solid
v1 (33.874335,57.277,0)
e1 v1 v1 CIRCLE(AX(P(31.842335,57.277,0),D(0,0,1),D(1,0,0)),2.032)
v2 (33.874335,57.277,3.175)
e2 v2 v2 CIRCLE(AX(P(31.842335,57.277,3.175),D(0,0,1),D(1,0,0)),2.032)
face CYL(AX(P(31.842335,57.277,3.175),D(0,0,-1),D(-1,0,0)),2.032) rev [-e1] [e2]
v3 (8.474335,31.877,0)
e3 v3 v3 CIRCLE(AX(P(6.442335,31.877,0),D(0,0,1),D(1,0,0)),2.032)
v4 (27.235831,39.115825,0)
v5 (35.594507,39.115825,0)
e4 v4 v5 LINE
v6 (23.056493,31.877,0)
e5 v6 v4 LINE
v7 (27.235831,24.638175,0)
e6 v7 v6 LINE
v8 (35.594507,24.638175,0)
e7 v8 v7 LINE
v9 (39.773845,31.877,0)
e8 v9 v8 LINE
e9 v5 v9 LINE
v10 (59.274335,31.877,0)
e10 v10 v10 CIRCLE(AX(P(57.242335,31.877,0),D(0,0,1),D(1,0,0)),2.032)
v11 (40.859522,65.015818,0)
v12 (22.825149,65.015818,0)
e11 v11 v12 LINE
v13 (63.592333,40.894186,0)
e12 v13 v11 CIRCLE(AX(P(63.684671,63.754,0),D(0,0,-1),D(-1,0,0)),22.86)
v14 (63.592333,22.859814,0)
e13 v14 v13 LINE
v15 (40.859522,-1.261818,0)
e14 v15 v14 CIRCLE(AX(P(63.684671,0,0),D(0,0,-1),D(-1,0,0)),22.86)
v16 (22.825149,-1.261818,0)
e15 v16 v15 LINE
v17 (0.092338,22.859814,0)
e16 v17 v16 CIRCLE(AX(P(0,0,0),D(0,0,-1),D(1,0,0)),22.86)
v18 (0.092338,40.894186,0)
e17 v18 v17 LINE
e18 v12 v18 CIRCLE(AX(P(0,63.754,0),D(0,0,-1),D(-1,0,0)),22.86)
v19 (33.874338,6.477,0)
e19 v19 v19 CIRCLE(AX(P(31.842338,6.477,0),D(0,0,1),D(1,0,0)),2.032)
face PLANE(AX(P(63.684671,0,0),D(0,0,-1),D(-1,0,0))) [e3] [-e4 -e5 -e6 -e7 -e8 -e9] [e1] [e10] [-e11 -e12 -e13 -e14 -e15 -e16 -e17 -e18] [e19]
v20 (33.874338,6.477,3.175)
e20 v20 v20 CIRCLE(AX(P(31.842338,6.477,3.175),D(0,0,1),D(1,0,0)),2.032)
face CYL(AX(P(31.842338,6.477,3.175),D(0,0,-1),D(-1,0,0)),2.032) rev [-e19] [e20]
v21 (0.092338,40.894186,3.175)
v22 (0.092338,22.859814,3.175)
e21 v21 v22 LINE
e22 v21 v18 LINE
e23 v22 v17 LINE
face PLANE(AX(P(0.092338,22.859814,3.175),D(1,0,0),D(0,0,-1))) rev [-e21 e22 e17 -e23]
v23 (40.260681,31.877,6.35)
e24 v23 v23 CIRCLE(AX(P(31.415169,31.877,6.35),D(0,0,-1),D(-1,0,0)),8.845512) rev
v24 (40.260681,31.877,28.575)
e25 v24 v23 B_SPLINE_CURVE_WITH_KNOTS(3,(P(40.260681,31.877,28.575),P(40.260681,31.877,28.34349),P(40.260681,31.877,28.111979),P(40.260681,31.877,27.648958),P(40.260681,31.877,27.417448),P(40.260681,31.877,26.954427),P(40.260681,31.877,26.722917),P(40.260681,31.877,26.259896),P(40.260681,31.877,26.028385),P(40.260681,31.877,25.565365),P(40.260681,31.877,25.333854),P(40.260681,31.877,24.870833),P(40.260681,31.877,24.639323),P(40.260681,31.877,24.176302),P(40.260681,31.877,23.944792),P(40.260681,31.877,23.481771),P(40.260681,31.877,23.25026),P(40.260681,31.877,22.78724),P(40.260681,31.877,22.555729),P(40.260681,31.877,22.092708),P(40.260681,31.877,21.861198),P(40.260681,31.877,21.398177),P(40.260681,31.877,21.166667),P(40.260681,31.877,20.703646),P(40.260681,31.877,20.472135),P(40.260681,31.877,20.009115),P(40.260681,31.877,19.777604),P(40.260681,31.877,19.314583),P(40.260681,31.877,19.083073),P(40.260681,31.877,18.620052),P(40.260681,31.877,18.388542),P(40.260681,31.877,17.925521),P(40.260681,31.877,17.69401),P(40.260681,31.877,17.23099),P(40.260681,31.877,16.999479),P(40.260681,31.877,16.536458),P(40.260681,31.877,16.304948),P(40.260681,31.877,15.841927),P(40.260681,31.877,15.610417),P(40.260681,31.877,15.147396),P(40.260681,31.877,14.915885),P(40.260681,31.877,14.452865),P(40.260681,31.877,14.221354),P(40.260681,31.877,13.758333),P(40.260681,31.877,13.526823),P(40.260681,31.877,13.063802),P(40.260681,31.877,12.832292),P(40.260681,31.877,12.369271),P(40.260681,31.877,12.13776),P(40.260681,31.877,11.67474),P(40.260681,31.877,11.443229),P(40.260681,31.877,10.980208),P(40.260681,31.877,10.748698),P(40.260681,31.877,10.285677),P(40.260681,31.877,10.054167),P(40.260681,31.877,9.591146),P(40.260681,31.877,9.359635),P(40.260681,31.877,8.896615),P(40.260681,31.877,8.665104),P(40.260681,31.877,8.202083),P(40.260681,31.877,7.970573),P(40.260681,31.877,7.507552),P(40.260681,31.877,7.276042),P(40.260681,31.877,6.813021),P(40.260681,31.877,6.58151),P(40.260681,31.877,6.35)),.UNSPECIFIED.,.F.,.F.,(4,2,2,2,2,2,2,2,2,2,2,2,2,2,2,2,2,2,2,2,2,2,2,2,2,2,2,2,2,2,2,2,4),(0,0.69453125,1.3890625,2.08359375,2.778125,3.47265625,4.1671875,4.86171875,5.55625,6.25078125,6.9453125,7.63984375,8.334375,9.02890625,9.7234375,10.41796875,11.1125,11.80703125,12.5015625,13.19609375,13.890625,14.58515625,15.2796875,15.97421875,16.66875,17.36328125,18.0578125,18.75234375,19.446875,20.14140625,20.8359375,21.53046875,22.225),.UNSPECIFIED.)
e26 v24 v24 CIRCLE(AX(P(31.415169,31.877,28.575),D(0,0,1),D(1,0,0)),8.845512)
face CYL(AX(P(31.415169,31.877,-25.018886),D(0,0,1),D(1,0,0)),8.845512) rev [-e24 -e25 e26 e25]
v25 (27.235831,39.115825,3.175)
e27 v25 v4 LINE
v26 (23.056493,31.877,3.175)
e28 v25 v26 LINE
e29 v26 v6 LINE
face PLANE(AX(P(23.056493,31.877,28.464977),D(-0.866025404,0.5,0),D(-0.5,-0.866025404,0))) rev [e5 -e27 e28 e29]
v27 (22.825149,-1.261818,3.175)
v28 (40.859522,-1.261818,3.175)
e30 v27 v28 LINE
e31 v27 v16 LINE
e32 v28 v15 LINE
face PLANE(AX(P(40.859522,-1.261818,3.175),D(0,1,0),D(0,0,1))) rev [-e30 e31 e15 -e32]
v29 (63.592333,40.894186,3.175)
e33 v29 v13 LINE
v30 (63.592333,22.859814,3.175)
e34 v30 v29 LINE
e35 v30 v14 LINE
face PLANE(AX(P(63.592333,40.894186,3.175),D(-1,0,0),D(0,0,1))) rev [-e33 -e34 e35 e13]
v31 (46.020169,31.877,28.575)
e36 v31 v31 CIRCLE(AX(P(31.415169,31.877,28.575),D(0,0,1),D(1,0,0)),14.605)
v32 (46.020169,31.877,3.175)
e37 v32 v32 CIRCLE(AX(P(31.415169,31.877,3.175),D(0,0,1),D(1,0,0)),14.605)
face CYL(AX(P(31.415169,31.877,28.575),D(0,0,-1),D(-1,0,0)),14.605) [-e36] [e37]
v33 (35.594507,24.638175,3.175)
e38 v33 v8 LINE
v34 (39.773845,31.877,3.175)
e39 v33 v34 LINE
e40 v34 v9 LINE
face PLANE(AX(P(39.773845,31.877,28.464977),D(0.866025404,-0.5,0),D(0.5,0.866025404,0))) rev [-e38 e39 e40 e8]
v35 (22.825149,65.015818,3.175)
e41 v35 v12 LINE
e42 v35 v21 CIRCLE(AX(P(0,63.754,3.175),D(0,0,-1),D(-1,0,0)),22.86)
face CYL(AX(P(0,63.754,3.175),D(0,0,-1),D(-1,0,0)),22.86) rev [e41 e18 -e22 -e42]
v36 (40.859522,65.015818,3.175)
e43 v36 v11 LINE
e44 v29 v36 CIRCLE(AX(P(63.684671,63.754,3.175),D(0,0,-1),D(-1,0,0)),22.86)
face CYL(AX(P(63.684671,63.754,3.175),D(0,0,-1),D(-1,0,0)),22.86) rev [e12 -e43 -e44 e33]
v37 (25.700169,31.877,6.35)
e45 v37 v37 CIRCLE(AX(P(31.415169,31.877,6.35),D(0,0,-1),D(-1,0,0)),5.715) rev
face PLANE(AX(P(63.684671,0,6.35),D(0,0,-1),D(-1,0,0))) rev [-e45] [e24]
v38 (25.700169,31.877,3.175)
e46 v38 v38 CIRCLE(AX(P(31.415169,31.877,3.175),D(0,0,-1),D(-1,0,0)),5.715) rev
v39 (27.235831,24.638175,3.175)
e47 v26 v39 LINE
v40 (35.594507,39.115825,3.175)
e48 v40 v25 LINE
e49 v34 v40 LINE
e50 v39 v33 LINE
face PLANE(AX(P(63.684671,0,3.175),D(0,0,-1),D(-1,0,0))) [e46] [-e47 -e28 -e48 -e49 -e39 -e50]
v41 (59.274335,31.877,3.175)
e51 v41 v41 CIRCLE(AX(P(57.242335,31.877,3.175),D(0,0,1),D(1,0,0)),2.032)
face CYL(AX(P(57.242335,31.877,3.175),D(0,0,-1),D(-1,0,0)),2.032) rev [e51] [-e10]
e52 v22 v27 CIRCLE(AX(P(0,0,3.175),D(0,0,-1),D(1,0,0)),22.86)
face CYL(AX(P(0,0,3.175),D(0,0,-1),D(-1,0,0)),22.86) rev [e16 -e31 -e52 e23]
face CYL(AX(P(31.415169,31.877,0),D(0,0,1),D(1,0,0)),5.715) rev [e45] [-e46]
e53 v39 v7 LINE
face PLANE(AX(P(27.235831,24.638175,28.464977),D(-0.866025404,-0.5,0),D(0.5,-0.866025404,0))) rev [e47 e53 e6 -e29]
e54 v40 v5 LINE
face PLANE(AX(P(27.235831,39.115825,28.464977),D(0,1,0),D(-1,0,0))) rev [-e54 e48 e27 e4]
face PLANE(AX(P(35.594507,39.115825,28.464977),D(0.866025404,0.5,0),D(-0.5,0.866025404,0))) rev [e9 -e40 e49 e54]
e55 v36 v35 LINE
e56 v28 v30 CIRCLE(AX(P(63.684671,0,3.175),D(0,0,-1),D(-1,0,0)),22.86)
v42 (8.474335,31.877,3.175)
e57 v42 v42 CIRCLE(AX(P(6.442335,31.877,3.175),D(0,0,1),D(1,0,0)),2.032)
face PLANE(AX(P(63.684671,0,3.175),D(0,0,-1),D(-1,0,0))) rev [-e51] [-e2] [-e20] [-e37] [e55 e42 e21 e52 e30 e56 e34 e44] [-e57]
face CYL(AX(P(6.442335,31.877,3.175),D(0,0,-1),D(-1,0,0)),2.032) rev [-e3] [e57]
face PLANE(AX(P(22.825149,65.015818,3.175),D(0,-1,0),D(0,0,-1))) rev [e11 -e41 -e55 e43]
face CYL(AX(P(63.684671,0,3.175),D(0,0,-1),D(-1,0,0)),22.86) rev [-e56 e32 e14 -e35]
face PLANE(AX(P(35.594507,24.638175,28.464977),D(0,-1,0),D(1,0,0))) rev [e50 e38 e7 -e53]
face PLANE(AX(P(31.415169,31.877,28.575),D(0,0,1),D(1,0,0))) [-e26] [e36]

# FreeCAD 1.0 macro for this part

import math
import FreeCAD as App
import Part
import Sketcher
from FreeCAD import Vector
Q = App.Units.Quantity

doc = App.newDocument("Part")
body = doc.addObject("PartDesign::Body", "Body")

sketch1 = body.newObject("Sketcher::SketchObject", "Sketch")
sketch1.AttachmentSupport = (doc.getObject("XY_Plane"), [""])
sketch1.MapMode = "FlatFace"
sketch1.addGeometry(Part.LineSegment(Vector(0.1, 40.9, 0), Vector(0.1, 22.9, 0)), False)
sketch1.addGeometry(Part.ArcOfCircle(Part.Circle(Vector(0, 0, 0), Vector(0, 0, 1), 22.9), math.radians(-3), math.radians(90)), False)
sketch1.addGeometry(Part.LineSegment(Vector(22.8, -1.3, 0), Vector(40.9, -1.3, 0)), False)
sketch1.addGeometry(Part.ArcOfCircle(Part.Circle(Vector(63.7, 0, 0), Vector(0, 0, 1), 22.9), math.radians(90), math.radians(183)), False)
sketch1.addGeometry(Part.LineSegment(Vector(63.6, 22.9, 0), Vector(63.6, 40.9, 0)), False)
sketch1.addGeometry(Part.ArcOfCircle(Part.Circle(Vector(63.7, 63.8, 0), Vector(0, 0, 1), 22.9), math.radians(177), math.radians(270)), False)
sketch1.addGeometry(Part.LineSegment(Vector(40.9, 65, 0), Vector(22.8, 65, 0)), False)
sketch1.addGeometry(Part.ArcOfCircle(Part.Circle(Vector(0, 63.8, 0), Vector(0, 0, 1), 22.9), math.radians(-90), math.radians(3)), False)
sketch1.addGeometry(Part.Circle(Vector(31.8, 6.5, 0), Vector(0, 0, 1), 2), False)
sketch1.addGeometry(Part.Circle(Vector(57.2, 31.9, 0), Vector(0, 0, 1), 2), False)
sketch1.addGeometry(Part.Circle(Vector(6.4, 31.9, 0), Vector(0, 0, 1), 2), False)
sketch1.addGeometry(Part.Circle(Vector(31.8, 57.3, 0), Vector(0, 0, 1), 2), False)
sketch1.addConstraint(Sketcher.Constraint("Coincident", 0, 2, 1, 2))
sketch1.addConstraint(Sketcher.Constraint("Coincident", 1, 1, 2, 1))
sketch1.addConstraint(Sketcher.Constraint("Coincident", 2, 2, 3, 2))
sketch1.addConstraint(Sketcher.Constraint("Coincident", 3, 1, 4, 1))
sketch1.addConstraint(Sketcher.Constraint("Coincident", 4, 2, 5, 2))
sketch1.addConstraint(Sketcher.Constraint("Coincident", 5, 1, 6, 1))
sketch1.addConstraint(Sketcher.Constraint("Coincident", 6, 2, 7, 2))
sketch1.addConstraint(Sketcher.Constraint("Coincident", 7, 1, 0, 1))
sketch1.addConstraint(Sketcher.Constraint("Vertical", 0))
sketch1.addConstraint(Sketcher.Constraint("Horizontal", 2))
sketch1.addConstraint(Sketcher.Constraint("Vertical", 4))
sketch1.addConstraint(Sketcher.Constraint("Horizontal", 6))
sketch1.addConstraint(Sketcher.Constraint("Coincident", 1, 3, -1, 1))
sketch1.addConstraint(Sketcher.Constraint("Equal", 1, 3))
sketch1.addConstraint(Sketcher.Constraint("Equal", 3, 5))
sketch1.addConstraint(Sketcher.Constraint("Equal", 5, 7))
sketch1.addConstraint(Sketcher.Constraint("Equal", 8, 9))
sketch1.addConstraint(Sketcher.Constraint("Equal", 9, 10))
sketch1.addConstraint(Sketcher.Constraint("Equal", 10, 11))
sketch1.addConstraint(Sketcher.Constraint("PointOnObject", 3, 3, -1))
sketch1.addConstraint(Sketcher.Constraint("PointOnObject", 7, 3, -2))
sketch1.addConstraint(Sketcher.Constraint("Horizontal", 5, 3, 7, 3))
sketch1.addConstraint(Sketcher.Constraint("Horizontal", 9, 3, 10, 3))
sketch1.addConstraint(Sketcher.Constraint("Horizontal", 0, 2, 3, 1))
sketch1.addConstraint(Sketcher.Constraint("Horizontal", 4, 2, 7, 1))
sketch1.addConstraint(Sketcher.Constraint("Vertical", 2, 2, 5, 1))
sketch1.addConstraint(Sketcher.Constraint("Equal", 6, 0))
sketch1.addConstraint(Sketcher.Constraint("Radius", 1, Q("0.9 in")))
sketch1.addConstraint(Sketcher.Constraint("Diameter", 8, Q("0.16 in")))
sketch1.addConstraint(Sketcher.Constraint("DistanceX", 8, 3, 9, 3, Q("0.9999999 in")))
sketch1.addConstraint(Sketcher.Constraint("DistanceY", 8, 3, 9, 3, Q("1 in")))
sketch1.addConstraint(Sketcher.Constraint("DistanceX", 10, 3, 8, 3, Q("1.0000001 in")))
sketch1.addConstraint(Sketcher.Constraint("DistanceX", 11, 3, 9, 3, Q("1 in")))
sketch1.addConstraint(Sketcher.Constraint("DistanceY", 9, 3, 11, 3, Q("1 in")))
sketch1.addConstraint(Sketcher.Constraint("DistanceY", -1, 1, 5, 3, Q("2.51 in")))
sketch1.addConstraint(Sketcher.Constraint("DistanceX", 0, 2, 10, 3, Q("0.2499999 in")))
sketch1.addConstraint(Sketcher.Constraint("DistanceX", 9, 3, 3, 1, Q("0.2499999 in")))
sketch1.addConstraint(Sketcher.Constraint("DistanceY", -1, 1, 8, 3, Q("0.255 in")))
sketch1.addConstraint(Sketcher.Constraint("DistanceX", -1, 1, 3, 3, 63.684671))
pad1 = body.newObject("PartDesign::Pad", "Pad")
pad1.Profile = sketch1
pad1.Length = Q("0.125 in")

sketch2 = body.newObject("Sketcher::SketchObject", "Sketch001")
sketch2.AttachmentSupport = (doc.getObject("XY_Plane"), [""])
sketch2.MapMode = "FlatFace"
sketch2.AttachmentOffset = App.Placement(Vector(0, 0, 0.125 * 25.4), App.Rotation())
sketch2.addGeometry(Part.Circle(Vector(31, 32, 0), Vector(0, 0, 1), 6), False)
sketch2.addConstraint(Sketcher.Constraint("Diameter", 0, Q("0.45 in")))
sketch2.addConstraint(Sketcher.Constraint("DistanceY", -1, 1, 0, 3, Q("1.255 in")))
sketch2.addConstraint(Sketcher.Constraint("DistanceX", -1, 1, 0, 3, 31.415169))
pocket1 = body.newObject("PartDesign::Pocket", "Pocket")
pocket1.Profile = sketch2
pocket1.Length = Q("0.125 in")

sketch3 = body.newObject("Sketcher::SketchObject", "Sketch002")
sketch3.AttachmentSupport = (doc.getObject("XY_Plane"), [""])
sketch3.MapMode = "FlatFace"
sketch3.AttachmentOffset = App.Placement(Vector(0, 0, 1.125 * 25.4), App.Rotation())
sketch3.addGeometry(Part.Circle(Vector(31, 32, 0), Vector(0, 0, 1), 15), False)
sketch3.addGeometry(Part.Circle(Vector(31, 32, 0), Vector(0, 0, 1), 6), False)
sketch3.addConstraint(Sketcher.Constraint("Coincident", 1, 3, 0, 3))
sketch3.addConstraint(Sketcher.Constraint("Diameter", 0, Q("1.15 in")))
sketch3.addConstraint(Sketcher.Constraint("Diameter", 1, Q("0.45 in")))
sketch3.addConstraint(Sketcher.Constraint("DistanceY", -1, 1, 0, 3, Q("1.255 in")))
sketch3.addConstraint(Sketcher.Constraint("DistanceX", -1, 1, 0, 3, 31.415169))
pad2 = body.newObject("PartDesign::Pad", "Pad001")
pad2.Profile = sketch3
pad2.Length = Q("1 in")
pad2.Reversed = True

sketch4 = body.newObject("Sketcher::SketchObject", "Sketch003")
sketch4.AttachmentSupport = (doc.getObject("XY_Plane"), [""])
sketch4.MapMode = "FlatFace"
sketch4.AttachmentOffset = App.Placement(Vector(0, 0, 1.125 * 25.4), App.Rotation())
sketch4.addGeometry(Part.Circle(Vector(31, 32, 0), Vector(0, 0, 1), 9), False)
sketch4.addConstraint(Sketcher.Constraint("DistanceY", -1, 1, 0, 3, Q("1.255 in")))
sketch4.addConstraint(Sketcher.Constraint("Diameter", 0, 17.691024))
sketch4.addConstraint(Sketcher.Constraint("DistanceX", -1, 1, 0, 3, 31.415169))
pocket2 = body.newObject("PartDesign::Pocket", "Pocket001")
pocket2.Profile = sketch4
pocket2.Length = Q("0.875 in")

sketch5 = body.newObject("Sketcher::SketchObject", "Sketch004")
sketch5.AttachmentSupport = (doc.getObject("XY_Plane"), [""])
sketch5.MapMode = "FlatFace"
sketch5.addGeometry(Part.LineSegment(Vector(23, 32, 0), Vector(27, 39, 0)), False)
sketch5.addGeometry(Part.LineSegment(Vector(27, 39, 0), Vector(36, 39, 0)), False)
sketch5.addGeometry(Part.LineSegment(Vector(36, 39, 0), Vector(40, 32, 0)), False)
sketch5.addGeometry(Part.LineSegment(Vector(40, 32, 0), Vector(36, 25, 0)), False)
sketch5.addGeometry(Part.LineSegment(Vector(36, 25, 0), Vector(27, 25, 0)), False)
sketch5.addGeometry(Part.LineSegment(Vector(27, 25, 0), Vector(23, 32, 0)), False)
sketch5.addConstraint(Sketcher.Constraint("Coincident", 0, 2, 1, 1))
sketch5.addConstraint(Sketcher.Constraint("Coincident", 1, 2, 2, 1))
sketch5.addConstraint(Sketcher.Constraint("Coincident", 2, 2, 3, 1))
sketch5.addConstraint(Sketcher.Constraint("Coincident", 3, 2, 4, 1))
sketch5.addConstraint(Sketcher.Constraint("Coincident", 4, 2, 5, 1))
sketch5.addConstraint(Sketcher.Constraint("Coincident", 5, 2, 0, 1))
sketch5.addConstraint(Sketcher.Constraint("Horizontal", 1))
sketch5.addConstraint(Sketcher.Constraint("Horizontal", 4))
sketch5.addConstraint(Sketcher.Constraint("Parallel", 0, 3))
sketch5.addConstraint(Sketcher.Constraint("Parallel", 2, 5))
sketch5.addConstraint(Sketcher.Constraint("Horizontal", 2, 2, 5, 2))
sketch5.addConstraint(Sketcher.Constraint("Vertical", 1, 2, 3, 2))
sketch5.addConstraint(Sketcher.Constraint("Vertical", 0, 2, 4, 2))
sketch5.addConstraint(Sketcher.Constraint("Angle", 0, Q("60 deg")))
sketch5.addConstraint(Sketcher.Constraint("DistanceY", -1, 1, 2, 2, Q("1.255 in")))
sketch5.addConstraint(Sketcher.Constraint("DistanceX", 1, 1, 1, 2, 8.358676))
sketch5.addConstraint(Sketcher.Constraint("DistanceX", -1, 1, 0, 2, 27.235831))
sketch5.addConstraint(Sketcher.Constraint("DistanceY", 3, 2, 1, 2, 14.477651))
pocket3 = body.newObject("PartDesign::Pocket", "Pocket002")
pocket3.Profile = sketch5
pocket3.Length = Q("0.125 in")
pocket3.Reversed = True

doc.recompute()
